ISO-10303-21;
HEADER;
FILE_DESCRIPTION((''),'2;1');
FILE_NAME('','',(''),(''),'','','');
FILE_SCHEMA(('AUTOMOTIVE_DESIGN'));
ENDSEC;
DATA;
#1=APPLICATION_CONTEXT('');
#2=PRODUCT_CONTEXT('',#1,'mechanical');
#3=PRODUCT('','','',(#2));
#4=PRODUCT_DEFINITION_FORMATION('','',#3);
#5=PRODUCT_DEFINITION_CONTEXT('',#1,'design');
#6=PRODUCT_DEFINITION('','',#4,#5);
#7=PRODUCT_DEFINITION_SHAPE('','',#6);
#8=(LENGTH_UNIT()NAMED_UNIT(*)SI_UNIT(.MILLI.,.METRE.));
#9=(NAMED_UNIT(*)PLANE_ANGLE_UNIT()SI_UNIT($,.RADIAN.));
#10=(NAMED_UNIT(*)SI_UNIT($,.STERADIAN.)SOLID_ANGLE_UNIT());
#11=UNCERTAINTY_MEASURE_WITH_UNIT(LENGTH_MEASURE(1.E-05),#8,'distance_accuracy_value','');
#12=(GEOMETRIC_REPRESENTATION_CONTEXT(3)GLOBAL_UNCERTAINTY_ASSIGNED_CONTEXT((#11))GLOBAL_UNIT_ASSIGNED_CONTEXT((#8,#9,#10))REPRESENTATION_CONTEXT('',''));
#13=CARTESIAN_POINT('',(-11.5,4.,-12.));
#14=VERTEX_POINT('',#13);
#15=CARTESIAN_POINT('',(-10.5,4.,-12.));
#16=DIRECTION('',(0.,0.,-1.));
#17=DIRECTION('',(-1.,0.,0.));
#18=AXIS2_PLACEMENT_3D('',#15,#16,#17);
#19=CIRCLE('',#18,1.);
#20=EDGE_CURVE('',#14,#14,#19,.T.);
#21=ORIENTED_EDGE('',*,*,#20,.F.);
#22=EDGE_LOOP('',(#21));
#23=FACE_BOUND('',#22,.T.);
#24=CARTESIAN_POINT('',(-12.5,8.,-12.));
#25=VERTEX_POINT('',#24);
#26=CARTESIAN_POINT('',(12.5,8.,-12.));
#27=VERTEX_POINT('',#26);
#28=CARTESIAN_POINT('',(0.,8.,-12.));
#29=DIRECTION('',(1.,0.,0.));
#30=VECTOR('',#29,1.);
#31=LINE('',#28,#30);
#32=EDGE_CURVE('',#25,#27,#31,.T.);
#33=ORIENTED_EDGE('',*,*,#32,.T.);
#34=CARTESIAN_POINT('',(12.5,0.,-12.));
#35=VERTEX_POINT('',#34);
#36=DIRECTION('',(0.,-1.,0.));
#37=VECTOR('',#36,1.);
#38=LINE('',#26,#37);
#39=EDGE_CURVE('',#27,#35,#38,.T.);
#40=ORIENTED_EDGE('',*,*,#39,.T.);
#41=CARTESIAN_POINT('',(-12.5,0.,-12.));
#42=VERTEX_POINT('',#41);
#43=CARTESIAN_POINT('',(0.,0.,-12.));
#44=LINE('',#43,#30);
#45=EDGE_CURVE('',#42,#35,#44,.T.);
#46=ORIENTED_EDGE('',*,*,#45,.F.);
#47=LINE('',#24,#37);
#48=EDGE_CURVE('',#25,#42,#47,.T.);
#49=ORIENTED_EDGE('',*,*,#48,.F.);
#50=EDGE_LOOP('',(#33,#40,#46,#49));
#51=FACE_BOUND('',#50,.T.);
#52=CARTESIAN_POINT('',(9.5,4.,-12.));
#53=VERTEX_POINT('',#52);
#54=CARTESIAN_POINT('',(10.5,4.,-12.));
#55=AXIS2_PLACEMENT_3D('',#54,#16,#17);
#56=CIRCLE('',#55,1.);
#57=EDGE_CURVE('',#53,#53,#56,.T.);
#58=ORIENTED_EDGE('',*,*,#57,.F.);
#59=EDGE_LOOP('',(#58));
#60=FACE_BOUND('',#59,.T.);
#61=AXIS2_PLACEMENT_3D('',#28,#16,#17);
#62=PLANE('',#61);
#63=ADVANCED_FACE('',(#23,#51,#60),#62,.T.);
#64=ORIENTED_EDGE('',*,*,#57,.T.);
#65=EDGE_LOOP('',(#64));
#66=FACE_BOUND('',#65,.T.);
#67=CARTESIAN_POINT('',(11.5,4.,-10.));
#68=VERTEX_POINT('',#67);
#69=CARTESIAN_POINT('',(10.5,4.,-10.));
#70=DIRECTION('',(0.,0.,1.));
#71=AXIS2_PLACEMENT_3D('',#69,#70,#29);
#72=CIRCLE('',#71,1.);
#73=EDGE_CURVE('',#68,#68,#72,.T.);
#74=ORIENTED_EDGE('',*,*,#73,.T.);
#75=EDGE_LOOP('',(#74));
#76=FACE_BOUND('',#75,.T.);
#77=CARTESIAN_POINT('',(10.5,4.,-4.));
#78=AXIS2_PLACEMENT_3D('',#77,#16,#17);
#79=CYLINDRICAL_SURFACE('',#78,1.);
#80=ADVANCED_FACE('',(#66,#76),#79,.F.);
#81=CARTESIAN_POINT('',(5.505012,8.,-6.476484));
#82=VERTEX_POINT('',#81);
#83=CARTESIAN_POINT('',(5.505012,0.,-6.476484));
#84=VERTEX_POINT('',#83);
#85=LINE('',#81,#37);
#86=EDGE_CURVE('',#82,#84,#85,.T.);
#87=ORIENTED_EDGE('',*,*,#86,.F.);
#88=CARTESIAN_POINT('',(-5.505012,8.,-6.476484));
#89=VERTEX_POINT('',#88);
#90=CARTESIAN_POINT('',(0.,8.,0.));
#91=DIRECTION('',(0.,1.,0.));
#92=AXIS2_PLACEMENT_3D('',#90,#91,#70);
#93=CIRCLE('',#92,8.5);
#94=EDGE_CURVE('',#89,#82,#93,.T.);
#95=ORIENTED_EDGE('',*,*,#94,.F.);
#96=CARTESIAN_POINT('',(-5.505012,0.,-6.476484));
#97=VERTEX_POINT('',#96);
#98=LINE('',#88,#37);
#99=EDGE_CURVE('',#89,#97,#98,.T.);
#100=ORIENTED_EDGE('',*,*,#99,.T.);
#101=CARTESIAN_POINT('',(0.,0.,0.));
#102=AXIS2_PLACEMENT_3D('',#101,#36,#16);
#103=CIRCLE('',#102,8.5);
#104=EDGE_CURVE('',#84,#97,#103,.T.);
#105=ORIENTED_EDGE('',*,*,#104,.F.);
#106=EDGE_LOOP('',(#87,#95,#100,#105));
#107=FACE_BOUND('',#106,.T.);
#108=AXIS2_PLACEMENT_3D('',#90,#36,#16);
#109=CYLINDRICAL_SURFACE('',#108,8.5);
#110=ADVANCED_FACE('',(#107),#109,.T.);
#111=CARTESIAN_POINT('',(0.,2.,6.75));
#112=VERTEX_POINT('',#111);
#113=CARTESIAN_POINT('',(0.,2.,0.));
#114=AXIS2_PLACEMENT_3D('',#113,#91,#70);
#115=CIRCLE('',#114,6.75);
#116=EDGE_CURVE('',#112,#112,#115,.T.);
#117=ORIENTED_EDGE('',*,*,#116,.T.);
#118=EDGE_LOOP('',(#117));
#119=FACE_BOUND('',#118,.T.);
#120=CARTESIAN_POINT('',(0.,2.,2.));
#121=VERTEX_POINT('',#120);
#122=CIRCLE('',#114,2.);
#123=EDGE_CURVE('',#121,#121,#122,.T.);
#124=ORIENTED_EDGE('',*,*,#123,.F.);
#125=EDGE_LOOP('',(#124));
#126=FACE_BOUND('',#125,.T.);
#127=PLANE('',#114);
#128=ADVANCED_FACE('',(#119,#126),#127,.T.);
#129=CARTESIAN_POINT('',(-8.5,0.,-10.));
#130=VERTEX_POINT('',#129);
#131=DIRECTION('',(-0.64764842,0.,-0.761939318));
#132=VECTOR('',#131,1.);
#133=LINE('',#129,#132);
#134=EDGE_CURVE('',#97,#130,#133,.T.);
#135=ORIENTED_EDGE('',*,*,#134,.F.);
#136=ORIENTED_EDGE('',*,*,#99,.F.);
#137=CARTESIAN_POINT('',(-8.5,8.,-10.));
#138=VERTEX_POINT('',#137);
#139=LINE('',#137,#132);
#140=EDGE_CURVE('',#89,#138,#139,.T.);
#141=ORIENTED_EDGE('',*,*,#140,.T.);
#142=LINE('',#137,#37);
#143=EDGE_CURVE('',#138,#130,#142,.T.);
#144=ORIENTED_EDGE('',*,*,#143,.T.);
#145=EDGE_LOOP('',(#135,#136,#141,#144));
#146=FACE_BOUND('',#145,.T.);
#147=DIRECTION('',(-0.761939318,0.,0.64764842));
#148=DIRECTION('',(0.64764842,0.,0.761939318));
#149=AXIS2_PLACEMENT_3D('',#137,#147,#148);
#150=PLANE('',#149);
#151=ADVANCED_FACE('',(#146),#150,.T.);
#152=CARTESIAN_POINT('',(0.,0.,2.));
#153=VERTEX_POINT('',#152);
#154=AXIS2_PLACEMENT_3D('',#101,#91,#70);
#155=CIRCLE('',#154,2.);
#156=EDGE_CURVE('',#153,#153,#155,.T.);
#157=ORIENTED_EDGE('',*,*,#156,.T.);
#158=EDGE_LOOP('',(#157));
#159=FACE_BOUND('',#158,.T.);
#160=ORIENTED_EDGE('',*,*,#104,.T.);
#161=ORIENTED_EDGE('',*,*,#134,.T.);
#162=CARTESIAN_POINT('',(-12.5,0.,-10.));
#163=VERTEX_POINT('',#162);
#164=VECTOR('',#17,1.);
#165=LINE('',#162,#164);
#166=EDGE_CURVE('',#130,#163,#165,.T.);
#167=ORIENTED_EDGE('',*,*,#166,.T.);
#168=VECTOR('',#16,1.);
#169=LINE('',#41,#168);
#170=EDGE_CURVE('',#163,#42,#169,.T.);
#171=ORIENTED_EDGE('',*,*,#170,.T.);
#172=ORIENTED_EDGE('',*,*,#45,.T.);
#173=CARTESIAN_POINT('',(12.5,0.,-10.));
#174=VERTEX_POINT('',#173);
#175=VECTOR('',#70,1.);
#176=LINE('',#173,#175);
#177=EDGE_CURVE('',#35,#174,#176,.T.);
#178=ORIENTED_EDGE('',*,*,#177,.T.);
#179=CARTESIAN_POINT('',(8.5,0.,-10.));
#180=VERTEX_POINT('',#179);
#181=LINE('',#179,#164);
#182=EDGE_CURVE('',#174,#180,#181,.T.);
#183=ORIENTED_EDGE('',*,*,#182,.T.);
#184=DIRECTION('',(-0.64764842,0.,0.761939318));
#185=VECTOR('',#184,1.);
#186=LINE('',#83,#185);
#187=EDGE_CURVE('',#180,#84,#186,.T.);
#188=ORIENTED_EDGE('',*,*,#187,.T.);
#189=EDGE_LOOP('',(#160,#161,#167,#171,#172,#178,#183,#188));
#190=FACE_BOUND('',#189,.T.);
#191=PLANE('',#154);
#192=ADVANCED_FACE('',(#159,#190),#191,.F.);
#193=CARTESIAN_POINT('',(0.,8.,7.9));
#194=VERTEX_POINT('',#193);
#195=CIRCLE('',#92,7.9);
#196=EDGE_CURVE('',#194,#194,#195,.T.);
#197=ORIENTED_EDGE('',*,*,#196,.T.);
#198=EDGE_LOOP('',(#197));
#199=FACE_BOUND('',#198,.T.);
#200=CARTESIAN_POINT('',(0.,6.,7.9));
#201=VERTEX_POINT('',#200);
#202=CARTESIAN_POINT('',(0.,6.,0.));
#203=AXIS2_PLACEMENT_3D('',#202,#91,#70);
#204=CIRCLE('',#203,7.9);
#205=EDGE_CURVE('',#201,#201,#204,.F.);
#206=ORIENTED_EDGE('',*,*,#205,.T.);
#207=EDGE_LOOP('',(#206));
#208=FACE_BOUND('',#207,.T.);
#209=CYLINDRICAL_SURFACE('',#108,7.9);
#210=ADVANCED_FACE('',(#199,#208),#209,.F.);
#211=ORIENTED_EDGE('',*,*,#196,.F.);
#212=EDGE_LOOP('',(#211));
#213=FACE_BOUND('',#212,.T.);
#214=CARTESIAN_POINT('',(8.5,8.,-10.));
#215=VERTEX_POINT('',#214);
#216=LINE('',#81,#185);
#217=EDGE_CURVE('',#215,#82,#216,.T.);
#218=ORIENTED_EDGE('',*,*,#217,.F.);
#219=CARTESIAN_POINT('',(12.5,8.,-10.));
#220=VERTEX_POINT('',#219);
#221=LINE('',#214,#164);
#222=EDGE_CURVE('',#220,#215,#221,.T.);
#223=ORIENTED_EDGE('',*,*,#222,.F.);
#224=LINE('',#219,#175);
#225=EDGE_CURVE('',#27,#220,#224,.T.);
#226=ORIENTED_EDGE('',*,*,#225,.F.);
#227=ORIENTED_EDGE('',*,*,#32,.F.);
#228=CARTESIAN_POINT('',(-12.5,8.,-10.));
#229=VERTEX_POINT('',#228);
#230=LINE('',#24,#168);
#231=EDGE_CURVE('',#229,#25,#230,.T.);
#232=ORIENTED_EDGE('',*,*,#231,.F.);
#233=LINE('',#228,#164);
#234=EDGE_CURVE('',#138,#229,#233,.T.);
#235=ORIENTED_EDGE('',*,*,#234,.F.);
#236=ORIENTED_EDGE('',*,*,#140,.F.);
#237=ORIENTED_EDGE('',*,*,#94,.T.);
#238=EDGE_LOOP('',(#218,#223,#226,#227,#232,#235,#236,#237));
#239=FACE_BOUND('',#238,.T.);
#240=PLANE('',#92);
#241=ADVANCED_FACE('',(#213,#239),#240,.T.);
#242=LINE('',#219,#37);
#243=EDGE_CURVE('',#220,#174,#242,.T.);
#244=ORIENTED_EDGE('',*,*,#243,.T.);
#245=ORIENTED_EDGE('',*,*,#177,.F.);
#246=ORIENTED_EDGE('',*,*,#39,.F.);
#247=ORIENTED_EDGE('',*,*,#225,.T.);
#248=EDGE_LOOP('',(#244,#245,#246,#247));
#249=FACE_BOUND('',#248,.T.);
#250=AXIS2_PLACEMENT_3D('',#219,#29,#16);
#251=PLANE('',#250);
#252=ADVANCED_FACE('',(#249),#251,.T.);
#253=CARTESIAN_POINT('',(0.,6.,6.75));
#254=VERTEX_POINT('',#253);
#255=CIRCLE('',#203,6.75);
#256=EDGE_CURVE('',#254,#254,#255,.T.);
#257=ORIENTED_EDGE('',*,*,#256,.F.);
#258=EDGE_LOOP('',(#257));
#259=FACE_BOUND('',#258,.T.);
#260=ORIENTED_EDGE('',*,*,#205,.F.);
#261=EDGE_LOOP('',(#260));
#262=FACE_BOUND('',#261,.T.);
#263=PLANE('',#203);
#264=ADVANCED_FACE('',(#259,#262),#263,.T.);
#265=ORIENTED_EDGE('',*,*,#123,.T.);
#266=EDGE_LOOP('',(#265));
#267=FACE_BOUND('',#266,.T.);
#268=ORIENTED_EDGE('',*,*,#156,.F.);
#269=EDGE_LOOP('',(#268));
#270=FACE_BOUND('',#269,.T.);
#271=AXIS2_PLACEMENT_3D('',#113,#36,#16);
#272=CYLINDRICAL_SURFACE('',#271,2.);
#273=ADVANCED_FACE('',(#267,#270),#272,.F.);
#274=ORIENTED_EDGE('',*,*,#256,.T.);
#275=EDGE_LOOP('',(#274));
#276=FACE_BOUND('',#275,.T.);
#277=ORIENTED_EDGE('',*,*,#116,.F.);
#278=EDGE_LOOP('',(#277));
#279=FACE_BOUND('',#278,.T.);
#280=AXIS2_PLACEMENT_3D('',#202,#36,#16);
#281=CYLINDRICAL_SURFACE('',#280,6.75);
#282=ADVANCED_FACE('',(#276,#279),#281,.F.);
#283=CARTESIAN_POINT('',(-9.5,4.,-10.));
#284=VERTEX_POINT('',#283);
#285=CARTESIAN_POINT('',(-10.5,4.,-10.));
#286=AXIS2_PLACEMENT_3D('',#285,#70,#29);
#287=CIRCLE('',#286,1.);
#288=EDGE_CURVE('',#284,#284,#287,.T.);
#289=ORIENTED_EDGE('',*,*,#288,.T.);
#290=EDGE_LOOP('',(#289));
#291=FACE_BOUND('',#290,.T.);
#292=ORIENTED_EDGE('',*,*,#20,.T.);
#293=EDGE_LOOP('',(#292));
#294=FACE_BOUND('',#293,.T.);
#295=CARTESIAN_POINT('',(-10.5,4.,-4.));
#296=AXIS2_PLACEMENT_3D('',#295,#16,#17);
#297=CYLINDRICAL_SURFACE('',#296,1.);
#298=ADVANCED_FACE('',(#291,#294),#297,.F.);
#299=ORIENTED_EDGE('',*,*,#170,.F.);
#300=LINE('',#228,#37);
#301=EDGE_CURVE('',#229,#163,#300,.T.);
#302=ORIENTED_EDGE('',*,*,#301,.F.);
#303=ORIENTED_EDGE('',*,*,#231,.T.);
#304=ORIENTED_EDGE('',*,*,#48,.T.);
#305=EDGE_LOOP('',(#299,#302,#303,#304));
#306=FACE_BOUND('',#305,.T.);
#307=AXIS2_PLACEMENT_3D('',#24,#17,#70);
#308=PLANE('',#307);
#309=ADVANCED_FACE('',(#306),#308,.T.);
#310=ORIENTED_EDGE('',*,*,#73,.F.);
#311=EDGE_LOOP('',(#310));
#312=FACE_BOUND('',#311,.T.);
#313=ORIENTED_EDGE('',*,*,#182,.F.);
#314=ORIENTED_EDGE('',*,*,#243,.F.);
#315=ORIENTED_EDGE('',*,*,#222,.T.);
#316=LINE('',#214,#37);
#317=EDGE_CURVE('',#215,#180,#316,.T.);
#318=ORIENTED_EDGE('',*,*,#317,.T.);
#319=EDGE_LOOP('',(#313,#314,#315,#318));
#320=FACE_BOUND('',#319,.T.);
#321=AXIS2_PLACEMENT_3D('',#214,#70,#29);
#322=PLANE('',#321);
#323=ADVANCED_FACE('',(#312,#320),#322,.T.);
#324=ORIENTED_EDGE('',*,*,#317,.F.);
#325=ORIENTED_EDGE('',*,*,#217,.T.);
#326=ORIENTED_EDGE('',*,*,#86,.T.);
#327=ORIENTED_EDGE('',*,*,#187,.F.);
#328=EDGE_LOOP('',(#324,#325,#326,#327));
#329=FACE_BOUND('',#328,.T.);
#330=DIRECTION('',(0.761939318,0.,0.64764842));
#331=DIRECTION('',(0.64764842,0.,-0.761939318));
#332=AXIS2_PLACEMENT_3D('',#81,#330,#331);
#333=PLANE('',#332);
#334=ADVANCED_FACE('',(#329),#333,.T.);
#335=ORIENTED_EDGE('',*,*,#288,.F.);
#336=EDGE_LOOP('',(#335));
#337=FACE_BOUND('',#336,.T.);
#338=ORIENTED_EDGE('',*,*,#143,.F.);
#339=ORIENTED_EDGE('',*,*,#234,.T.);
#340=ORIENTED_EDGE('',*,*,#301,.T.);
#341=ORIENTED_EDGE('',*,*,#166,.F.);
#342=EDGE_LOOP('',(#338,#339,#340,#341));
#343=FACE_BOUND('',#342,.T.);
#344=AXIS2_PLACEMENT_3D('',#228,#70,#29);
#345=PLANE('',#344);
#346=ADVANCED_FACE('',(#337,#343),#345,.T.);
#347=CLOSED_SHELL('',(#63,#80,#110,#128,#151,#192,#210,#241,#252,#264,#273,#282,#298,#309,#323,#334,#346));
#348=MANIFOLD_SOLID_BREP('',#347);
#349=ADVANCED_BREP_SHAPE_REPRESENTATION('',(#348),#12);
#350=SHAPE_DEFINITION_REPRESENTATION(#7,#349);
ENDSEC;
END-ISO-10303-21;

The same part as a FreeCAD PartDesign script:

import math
import FreeCAD as App
import Part
import Sketcher
Q = App.Units.Quantity

doc = App.newDocument("Part")
body = doc.addObject("PartDesign::Body", "Body")

# Sketch on XZ plane
sketch1 = body.newObject("Sketcher::SketchObject", "Sketch")
sketch1.AttachmentSupport = (doc.getObject("XZ_Plane"), [""])
sketch1.MapMode = "FlatFace"
sketch1.addGeometry([
    Part.Circle(App.Vector(0, 0, 0), App.Vector(0, 0, 1), 8),
    Part.Circle(App.Vector(0, 0, 0), App.Vector(0, 0, 1), 6.75),
], False)
sketch1.addConstraint([
    Sketcher.Constraint("Coincident", 0, 3, -1, 1),
    Sketcher.Constraint("Coincident", 1, 3, -1, 1),
    Sketcher.Constraint("Diameter", 0, Q("16 mm")),
    Sketcher.Constraint("Diameter", 1, Q("13.5 mm")),
])
pad1 = body.newObject("PartDesign::Pad", "Pad")
pad1.Profile = sketch1
pad1.Length = 6
pad1.Reversed = True

# Sketch on XZ plane
sketch2 = body.newObject("Sketcher::SketchObject", "Sketch001")
sketch2.AttachmentSupport = (doc.getObject("XZ_Plane"), [""])
sketch2.MapMode = "FlatFace"
sketch2.addGeometry([
    Part.Circle(App.Vector(0, 0, 0), App.Vector(0, 0, 1), 6.75),
    Part.Circle(App.Vector(0, 0, 0), App.Vector(0, 0, 1), 2),
], False)
sketch2.addConstraint([
    Sketcher.Constraint("Coincident", 0, 3, -1, 1),
    Sketcher.Constraint("Coincident", 1, 3, -1, 1),
    Sketcher.Constraint("Diameter", 1, Q("4 mm")),
    Sketcher.Constraint("Diameter", 0, Q("13.5 mm")),
])
pad2 = body.newObject("PartDesign::Pad", "Pad001")
pad2.Profile = sketch2
pad2.Length = 2
pad2.Reversed = True

# Sketch on XZ plane
sketch3 = body.newObject("Sketcher::SketchObject", "Sketch002")
sketch3.AttachmentSupport = (doc.getObject("XZ_Plane"), [""])
sketch3.MapMode = "FlatFace"
sketch3.AttachmentOffset = App.Placement(App.Vector(0, 0, -6), App.Rotation())
sketch3.addGeometry([
    Part.Circle(App.Vector(0, 0, 0), App.Vector(0, 0, 1), 8.5),
    Part.Circle(App.Vector(0, 0, 0), App.Vector(0, 0, 1), 7.9),
], False)
sketch3.addConstraint([
    Sketcher.Constraint("Coincident", 0, 3, -1, 1),
    Sketcher.Constraint("Coincident", 1, 3, -1, 1),
    Sketcher.Constraint("Diameter", 0, Q("17 mm")),
    Sketcher.Constraint("Diameter", 1, Q("15.8 mm")),
])
pad3 = body.newObject("PartDesign::Pad", "Pad002")
pad3.Profile = sketch3
pad3.Length = 2
pad3.Reversed = True

# Sketch on XZ plane
sketch4 = body.newObject("Sketcher::SketchObject", "Sketch003")
sketch4.AttachmentSupport = (doc.getObject("XZ_Plane"), [""])
sketch4.MapMode = "FlatFace"
sketch4.AttachmentOffset = App.Placement(App.Vector(0, 0, -6), App.Rotation())
sketch4.addGeometry([
    Part.Circle(App.Vector(0, 0, 0), App.Vector(0, 0, 1), 8.5),
    Part.Circle(App.Vector(0, 0, 0), App.Vector(0, 0, 1), 8),
], False)
sketch4.addConstraint([
    Sketcher.Constraint("Coincident", 0, 3, -1, 1),
    Sketcher.Constraint("Coincident", 1, 3, -1, 1),
    Sketcher.Constraint("Diameter", 0, Q("17 mm")),
    Sketcher.Constraint("Diameter", 1, Q("16 mm")),
])
pad4 = body.newObject("PartDesign::Pad", "Pad003")
pad4.Profile = sketch4
pad4.Length = 6

# Sketch on XZ plane
sketch5 = body.newObject("Sketcher::SketchObject", "Sketch004")
sketch5.AttachmentSupport = (doc.getObject("XZ_Plane"), [""])
sketch5.MapMode = "FlatFace"
sketch5.addGeometry([
    Part.LineSegment(App.Vector(-5.505012, -6.476484, 0), App.Vector(-8.5, -10, 0)),  # 0
    Part.LineSegment(App.Vector(-8.5, -10, 0), App.Vector(-12.5, -10, 0)),  # 1
    Part.LineSegment(App.Vector(-12.5, -10, 0), App.Vector(-12.5, -12, 0)),  # 2
    Part.LineSegment(App.Vector(-12.5, -12, 0), App.Vector(12.5, -12, 0)),  # 3
    Part.LineSegment(App.Vector(12.5, -12, 0), App.Vector(12.5, -10, 0)),  # 4
    Part.LineSegment(App.Vector(12.5, -10, 0), App.Vector(8.5, -10, 0)),  # 5
    Part.LineSegment(App.Vector(8.5, -10, 0), App.Vector(5.505012, -6.476484, 0)),  # 6
    Part.ArcOfCircle(Part.Circle(App.Vector(0, 0, 0), App.Vector(0, 0, 1), 8.5), math.radians(-130.364537), math.radians(-49.635463)),  # 7
], False)
sketch5.addConstraint([
    Sketcher.Constraint("Coincident", 0, 2, 1, 1),
    Sketcher.Constraint("Coincident", 1, 2, 2, 1),
    Sketcher.Constraint("Coincident", 2, 2, 3, 1),
    Sketcher.Constraint("Coincident", 3, 2, 4, 1),
    Sketcher.Constraint("Coincident", 4, 2, 5, 1),
    Sketcher.Constraint("Coincident", 5, 2, 6, 1),
    Sketcher.Constraint("Coincident", 6, 2, 7, 2),
    Sketcher.Constraint("Coincident", 7, 1, 0, 1),
    Sketcher.Constraint("Horizontal", 1),
    Sketcher.Constraint("Vertical", 2),
    Sketcher.Constraint("Horizontal", 3),
    Sketcher.Constraint("Vertical", 4),
    Sketcher.Constraint("Horizontal", 5),
    Sketcher.Constraint("Coincident", 7, 3, -1, 1),
    Sketcher.Constraint("Symmetric", 1, 2, 4, 2, -2),
    Sketcher.Constraint("Horizontal", 6, 2, 7, 1),
    Sketcher.Constraint("Equal", 1, 5),
    Sketcher.Constraint("Radius", 7, Q("8.5 mm")),
    Sketcher.Constraint("DistanceX", 1, 2, 1, 1, Q("4 mm")),
    Sketcher.Constraint("DistanceX", 3, 1, 3, 2, Q("25 mm")),
    Sketcher.Constraint("DistanceY", 2, 2, 2, 1, Q("2 mm")),
    Sketcher.Constraint("DistanceY", 0, 2, -1, 1, Q("10 mm")),
    Sketcher.Constraint("DistanceX", -1, 1, 6, 2, Q("5.505012 mm")),
])
pad5 = body.newObject("PartDesign::Pad", "Pad004")
pad5.Profile = sketch5
pad5.Length = 8
pad5.Reversed = True

# Sketch on XY plane
sketch6 = body.newObject("Sketcher::SketchObject", "Sketch005")
sketch6.AttachmentSupport = (doc.getObject("XY_Plane"), [""])
sketch6.MapMode = "FlatFace"
sketch6.AttachmentOffset = App.Placement(App.Vector(0, 0, -12), App.Rotation())
sketch6.addGeometry([
    Part.Circle(App.Vector(-10.5, 4, 0), App.Vector(0, 0, 1), 1),
    Part.Circle(App.Vector(10.5, 4, 0), App.Vector(0, 0, 1), 1),
], False)
sketch6.addConstraint([
    Sketcher.Constraint("Equal", 0, 1),
    Sketcher.Constraint("Symmetric", 0, 3, 1, 3, -2),
    Sketcher.Constraint("Diameter", 0, Q("2 mm")),
    Sketcher.Constraint("DistanceY", -1, 1, 0, 3, Q("4 mm")),
    Sketcher.Constraint("DistanceX", 0, 3, 1, 3, Q("21 mm")),
])
pocket1 = body.newObject("PartDesign::Pocket", "Pocket")
pocket1.Profile = sketch6
pocket1.Length = 8
pocket1.Reversed = True

doc.recompute()
